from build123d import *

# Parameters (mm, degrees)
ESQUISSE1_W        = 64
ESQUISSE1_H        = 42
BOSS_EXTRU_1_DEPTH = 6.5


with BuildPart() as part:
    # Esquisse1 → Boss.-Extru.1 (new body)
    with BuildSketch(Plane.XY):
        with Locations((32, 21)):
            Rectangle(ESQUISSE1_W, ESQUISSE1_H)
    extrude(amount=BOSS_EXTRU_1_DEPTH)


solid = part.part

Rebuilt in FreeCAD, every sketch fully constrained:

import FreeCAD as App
import Part
import Sketcher

V = App.Vector
Q = App.Units.Quantity

doc = App.newDocument("Part")
body = doc.addObject("PartDesign::Body", "Body")

sketch1 = body.newObject("Sketcher::SketchObject", "Sketch")
sketch1.AttachmentSupport = (doc.getObject("XY_Plane"), [""])
sketch1.MapMode = "FlatFace"
sketch1.addGeometry([
    Part.LineSegment(V(0, 42, 0), V(0, 0, 0)),
    Part.LineSegment(V(0, 0, 0), V(64, 0, 0)),
    Part.LineSegment(V(64, 0, 0), V(64, 42, 0)),
    Part.LineSegment(V(64, 42, 0), V(0, 42, 0)),
], False)
sketch1.addConstraint([
    Sketcher.Constraint("Coincident", 0, 2, 1, 1),
    Sketcher.Constraint("Coincident", 1, 2, 2, 1),
    Sketcher.Constraint("Coincident", 2, 2, 3, 1),
    Sketcher.Constraint("Coincident", 3, 2, 0, 1),
    Sketcher.Constraint("Vertical", 0),
    Sketcher.Constraint("Horizontal", 1),
    Sketcher.Constraint("Vertical", 2),
    Sketcher.Constraint("Horizontal", 3),
    Sketcher.Constraint("Coincident", 0, 2, -1, 1),
    Sketcher.Constraint("DistanceX", 1, 1, 1, 2, Q("64 mm")),
    Sketcher.Constraint("DistanceY", 0, 2, 0, 1, Q("42 mm")),
])
pad1 = body.newObject("PartDesign::Pad", "Pad")
pad1.Profile = sketch1
pad1.Length = 6.5

doc.recompute()
